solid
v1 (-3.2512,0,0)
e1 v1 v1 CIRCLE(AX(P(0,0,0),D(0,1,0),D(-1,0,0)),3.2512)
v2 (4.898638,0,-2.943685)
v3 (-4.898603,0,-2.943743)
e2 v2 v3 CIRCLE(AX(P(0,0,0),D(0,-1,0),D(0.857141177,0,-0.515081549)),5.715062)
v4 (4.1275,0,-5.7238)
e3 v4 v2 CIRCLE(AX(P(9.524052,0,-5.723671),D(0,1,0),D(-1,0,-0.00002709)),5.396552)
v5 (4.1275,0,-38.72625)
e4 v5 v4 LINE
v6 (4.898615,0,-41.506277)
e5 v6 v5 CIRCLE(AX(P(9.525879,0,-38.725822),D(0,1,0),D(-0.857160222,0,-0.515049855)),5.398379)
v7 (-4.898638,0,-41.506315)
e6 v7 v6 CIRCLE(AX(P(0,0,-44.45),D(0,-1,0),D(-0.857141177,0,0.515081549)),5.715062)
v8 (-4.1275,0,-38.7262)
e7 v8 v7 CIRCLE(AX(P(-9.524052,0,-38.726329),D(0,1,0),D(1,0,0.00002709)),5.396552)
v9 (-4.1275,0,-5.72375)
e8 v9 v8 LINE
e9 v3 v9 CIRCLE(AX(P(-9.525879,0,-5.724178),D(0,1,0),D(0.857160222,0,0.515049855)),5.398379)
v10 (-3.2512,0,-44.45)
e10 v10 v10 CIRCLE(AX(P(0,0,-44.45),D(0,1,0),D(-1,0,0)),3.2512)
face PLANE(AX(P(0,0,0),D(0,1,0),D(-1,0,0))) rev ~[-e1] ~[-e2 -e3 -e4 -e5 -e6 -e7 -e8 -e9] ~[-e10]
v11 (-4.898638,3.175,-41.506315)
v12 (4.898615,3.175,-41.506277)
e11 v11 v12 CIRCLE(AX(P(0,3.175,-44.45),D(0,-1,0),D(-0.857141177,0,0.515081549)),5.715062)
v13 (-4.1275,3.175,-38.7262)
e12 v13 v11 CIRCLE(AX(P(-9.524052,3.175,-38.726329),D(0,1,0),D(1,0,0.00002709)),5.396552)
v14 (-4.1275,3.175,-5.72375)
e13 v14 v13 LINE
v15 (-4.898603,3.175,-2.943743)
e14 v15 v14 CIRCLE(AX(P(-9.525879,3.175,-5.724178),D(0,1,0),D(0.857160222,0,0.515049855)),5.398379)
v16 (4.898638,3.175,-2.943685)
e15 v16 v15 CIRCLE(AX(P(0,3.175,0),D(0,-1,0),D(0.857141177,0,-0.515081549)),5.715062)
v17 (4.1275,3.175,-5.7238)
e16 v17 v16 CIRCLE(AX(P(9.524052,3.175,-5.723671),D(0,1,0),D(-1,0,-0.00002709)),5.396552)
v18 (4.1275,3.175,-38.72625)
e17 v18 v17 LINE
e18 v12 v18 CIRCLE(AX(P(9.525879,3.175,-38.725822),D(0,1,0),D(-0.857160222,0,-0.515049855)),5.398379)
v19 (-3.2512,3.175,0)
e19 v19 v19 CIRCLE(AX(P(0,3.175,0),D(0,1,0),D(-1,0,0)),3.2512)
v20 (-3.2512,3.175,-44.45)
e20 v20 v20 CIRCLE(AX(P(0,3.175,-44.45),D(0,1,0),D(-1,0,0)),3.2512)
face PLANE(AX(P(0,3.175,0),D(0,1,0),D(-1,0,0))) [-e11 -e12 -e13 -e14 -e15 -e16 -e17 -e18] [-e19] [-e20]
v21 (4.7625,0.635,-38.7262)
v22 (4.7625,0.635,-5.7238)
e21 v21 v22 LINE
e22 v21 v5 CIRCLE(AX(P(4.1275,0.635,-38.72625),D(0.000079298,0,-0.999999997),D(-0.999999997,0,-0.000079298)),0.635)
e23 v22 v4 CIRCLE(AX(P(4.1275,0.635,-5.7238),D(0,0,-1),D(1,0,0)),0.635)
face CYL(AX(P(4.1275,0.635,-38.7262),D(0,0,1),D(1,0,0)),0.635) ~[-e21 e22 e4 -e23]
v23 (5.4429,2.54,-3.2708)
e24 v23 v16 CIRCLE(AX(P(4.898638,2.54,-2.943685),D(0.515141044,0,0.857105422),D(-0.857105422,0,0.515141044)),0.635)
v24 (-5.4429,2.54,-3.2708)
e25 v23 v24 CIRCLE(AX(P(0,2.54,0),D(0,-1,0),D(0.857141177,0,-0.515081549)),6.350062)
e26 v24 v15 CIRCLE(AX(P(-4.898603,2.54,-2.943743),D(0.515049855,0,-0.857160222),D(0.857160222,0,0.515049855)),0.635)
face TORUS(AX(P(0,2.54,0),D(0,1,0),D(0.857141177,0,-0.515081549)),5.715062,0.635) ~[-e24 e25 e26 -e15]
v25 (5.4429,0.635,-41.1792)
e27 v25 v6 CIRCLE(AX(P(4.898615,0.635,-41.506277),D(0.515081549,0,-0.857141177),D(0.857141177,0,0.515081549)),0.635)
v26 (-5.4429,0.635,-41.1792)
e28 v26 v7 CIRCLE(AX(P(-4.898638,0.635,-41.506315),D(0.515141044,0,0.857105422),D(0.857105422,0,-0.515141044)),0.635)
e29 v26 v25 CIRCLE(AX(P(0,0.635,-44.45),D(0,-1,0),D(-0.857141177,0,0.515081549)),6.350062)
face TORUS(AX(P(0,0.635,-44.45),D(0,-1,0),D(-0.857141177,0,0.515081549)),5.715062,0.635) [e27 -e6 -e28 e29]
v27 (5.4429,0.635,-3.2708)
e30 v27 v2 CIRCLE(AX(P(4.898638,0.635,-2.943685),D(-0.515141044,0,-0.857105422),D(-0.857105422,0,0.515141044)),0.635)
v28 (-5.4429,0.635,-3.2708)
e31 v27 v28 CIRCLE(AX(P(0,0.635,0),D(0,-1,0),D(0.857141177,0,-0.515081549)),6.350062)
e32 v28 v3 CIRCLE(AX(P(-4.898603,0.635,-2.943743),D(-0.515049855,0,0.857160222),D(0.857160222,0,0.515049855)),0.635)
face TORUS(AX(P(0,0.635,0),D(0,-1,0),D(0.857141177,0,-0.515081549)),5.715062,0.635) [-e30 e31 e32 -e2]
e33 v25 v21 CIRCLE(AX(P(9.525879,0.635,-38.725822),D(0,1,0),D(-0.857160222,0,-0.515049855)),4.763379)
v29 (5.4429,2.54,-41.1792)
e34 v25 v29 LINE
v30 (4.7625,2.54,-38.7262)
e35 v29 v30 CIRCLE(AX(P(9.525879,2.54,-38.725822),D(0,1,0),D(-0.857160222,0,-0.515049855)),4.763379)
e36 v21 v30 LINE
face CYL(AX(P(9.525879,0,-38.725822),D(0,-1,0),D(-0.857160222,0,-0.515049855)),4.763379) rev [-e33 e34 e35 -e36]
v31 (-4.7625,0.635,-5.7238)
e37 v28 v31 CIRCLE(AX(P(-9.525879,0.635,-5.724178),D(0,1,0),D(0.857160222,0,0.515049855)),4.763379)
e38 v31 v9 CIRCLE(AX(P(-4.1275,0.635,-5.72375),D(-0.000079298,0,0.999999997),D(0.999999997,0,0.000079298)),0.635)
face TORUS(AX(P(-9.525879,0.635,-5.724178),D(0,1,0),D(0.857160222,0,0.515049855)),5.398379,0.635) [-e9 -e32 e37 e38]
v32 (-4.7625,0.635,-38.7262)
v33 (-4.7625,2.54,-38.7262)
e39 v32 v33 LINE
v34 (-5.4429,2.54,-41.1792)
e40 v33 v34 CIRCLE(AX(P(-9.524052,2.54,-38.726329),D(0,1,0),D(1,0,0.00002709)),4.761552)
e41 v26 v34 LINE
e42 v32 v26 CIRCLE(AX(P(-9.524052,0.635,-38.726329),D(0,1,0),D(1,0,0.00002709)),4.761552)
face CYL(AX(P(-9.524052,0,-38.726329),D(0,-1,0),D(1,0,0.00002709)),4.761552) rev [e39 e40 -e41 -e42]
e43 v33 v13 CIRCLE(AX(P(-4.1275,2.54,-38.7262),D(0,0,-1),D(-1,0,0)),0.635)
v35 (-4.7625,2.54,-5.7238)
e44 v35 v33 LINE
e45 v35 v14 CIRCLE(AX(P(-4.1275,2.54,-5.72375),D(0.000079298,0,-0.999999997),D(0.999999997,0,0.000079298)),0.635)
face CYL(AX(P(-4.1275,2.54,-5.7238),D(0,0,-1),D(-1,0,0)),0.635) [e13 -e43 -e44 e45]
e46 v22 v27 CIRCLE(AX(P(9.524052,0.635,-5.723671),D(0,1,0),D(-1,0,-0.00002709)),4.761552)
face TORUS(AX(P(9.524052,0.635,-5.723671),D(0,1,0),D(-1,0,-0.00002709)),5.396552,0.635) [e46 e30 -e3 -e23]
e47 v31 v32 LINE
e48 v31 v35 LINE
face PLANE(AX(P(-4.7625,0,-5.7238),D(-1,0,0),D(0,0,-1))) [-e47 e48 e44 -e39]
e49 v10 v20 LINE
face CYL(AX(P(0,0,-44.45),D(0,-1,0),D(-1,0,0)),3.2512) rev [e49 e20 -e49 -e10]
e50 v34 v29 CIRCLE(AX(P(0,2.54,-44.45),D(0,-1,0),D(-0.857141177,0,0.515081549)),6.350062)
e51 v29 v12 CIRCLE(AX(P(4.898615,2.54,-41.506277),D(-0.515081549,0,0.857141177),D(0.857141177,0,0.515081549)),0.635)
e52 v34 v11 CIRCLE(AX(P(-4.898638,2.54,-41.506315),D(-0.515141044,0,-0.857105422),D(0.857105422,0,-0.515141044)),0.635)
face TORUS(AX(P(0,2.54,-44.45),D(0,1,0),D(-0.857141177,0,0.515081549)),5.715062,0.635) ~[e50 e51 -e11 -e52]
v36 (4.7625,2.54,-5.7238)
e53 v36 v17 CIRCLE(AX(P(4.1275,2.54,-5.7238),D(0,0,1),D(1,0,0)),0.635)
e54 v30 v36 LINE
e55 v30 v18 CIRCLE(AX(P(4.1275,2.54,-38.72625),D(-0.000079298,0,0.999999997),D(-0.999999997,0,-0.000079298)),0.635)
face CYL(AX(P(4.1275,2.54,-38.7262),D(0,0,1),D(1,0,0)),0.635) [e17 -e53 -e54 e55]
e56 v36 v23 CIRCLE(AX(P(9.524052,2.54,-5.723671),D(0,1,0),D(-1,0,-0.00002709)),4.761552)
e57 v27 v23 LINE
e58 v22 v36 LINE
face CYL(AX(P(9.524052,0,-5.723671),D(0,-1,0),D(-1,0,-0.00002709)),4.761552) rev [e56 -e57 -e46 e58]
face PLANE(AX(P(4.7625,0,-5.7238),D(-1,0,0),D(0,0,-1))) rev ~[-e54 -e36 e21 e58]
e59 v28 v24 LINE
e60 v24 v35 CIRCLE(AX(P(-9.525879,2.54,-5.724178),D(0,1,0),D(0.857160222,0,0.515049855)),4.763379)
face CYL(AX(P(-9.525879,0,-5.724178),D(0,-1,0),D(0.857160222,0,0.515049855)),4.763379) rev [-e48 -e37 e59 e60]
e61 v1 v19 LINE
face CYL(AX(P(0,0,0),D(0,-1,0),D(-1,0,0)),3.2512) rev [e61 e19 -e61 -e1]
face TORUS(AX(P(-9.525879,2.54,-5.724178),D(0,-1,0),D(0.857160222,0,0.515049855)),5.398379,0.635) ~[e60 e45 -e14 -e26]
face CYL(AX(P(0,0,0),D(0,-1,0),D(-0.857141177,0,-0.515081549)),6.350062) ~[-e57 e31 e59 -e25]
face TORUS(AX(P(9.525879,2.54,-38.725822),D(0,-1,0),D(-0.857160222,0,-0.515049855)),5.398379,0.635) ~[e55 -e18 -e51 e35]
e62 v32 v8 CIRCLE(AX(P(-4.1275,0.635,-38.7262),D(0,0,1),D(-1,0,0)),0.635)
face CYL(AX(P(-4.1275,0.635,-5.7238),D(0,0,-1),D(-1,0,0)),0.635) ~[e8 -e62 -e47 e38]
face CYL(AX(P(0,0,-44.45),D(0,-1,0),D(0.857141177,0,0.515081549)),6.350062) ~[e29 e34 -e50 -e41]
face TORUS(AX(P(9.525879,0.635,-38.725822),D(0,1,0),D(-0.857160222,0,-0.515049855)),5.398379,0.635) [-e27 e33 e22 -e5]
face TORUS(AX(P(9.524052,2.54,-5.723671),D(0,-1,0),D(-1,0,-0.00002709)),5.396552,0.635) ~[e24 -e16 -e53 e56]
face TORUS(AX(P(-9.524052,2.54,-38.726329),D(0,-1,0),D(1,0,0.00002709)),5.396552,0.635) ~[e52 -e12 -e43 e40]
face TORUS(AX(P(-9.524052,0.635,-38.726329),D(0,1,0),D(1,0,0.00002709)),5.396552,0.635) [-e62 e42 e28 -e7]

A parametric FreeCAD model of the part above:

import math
import FreeCAD as App
import Part
import Sketcher
Q = App.Units.Quantity


def edges_at(feature, points):
    """Names of the edges that pass closest to the given points."""
    edges = feature.Shape.Edges
    near = lambda p: min(range(len(edges)), key=lambda i: edges[i].distToShape(Part.Vertex(*p))[0])
    return sorted({f"Edge{near(p) + 1}" for p in points})

doc = App.newDocument("Part")
body = doc.addObject("PartDesign::Body", "Body")

# Sketch on XZ plane
sketch1 = body.newObject("Sketcher::SketchObject", "Sketch")
sketch1.AttachmentSupport = (doc.getObject("XZ_Plane"), [""])
sketch1.MapMode = "FlatFace"
sketch1.addGeometry(Part.LineSegment(App.Vector(-4.7625, -38.7262, 0), App.Vector(-4.7625, -5.7238, 0)), False)
sketch1.addGeometry(Part.ArcOfCircle(Part.Circle(App.Vector(-9.525, -5.7238, 0), App.Vector(0, 0, 1), 4.762431), math.radians(0), math.radians(31.00234)), False)
sketch1.addGeometry(Part.ArcOfCircle(Part.Circle(App.Vector(0, 0, 0), App.Vector(0, 0, 1), 6.350062), math.radians(-31.002906), math.radians(211.002906)), False)
sketch1.addGeometry(Part.ArcOfCircle(Part.Circle(App.Vector(9.525, -5.7238, 0), App.Vector(0, 0, 1), 4.7625), math.radians(148.99766), math.radians(180)), False)
sketch1.addGeometry(Part.LineSegment(App.Vector(4.7625, -5.7238, 0), App.Vector(4.7625, -38.7262, 0)), False)
sketch1.addGeometry(Part.ArcOfCircle(Part.Circle(App.Vector(9.525, -38.7262, 0), App.Vector(0, 0, 1), 4.762431), math.radians(180), math.radians(211.00234)), False)
sketch1.addGeometry(Part.ArcOfCircle(Part.Circle(App.Vector(0, -44.45, 0), App.Vector(0, 0, 1), 6.350062), math.radians(148.997094), math.radians(391.002906)), False)
sketch1.addGeometry(Part.ArcOfCircle(Part.Circle(App.Vector(-9.525, -38.7262, 0), App.Vector(0, 0, 1), 4.7625), math.radians(-31.00234), math.radians(0)), False)
sketch1.addGeometry(Part.Circle(App.Vector(0, -44.45, 0), App.Vector(0, 0, 1), 3.2512), False)
sketch1.addGeometry(Part.Circle(App.Vector(0, 0, 0), App.Vector(0, 0, 1), 3.2512), False)
sketch1.addConstraint(Sketcher.Constraint("Tangent", 0, 2, 1, 1))
sketch1.addConstraint(Sketcher.Constraint("Tangent", 1, 2, 2, 2))
sketch1.addConstraint(Sketcher.Constraint("Tangent", 2, 1, 3, 1))
sketch1.addConstraint(Sketcher.Constraint("Tangent", 3, 2, 4, 1))
sketch1.addConstraint(Sketcher.Constraint("Tangent", 4, 2, 5, 1))
sketch1.addConstraint(Sketcher.Constraint("Tangent", 5, 2, 6, 2))
sketch1.addConstraint(Sketcher.Constraint("Tangent", 6, 1, 7, 1))
sketch1.addConstraint(Sketcher.Constraint("Tangent", 7, 2, 0, 1))
sketch1.addConstraint(Sketcher.Constraint("Vertical", 0))
sketch1.addConstraint(Sketcher.Constraint("Vertical", 4))
sketch1.addConstraint(Sketcher.Constraint("Coincident", 2, 3, -1, 1))
sketch1.addConstraint(Sketcher.Constraint("Coincident", 9, 3, -1, 1))
sketch1.addConstraint(Sketcher.Constraint("Coincident", 8, 3, 6, 3))
sketch1.addConstraint(Sketcher.Constraint("Equal", 1, 3))
sketch1.addConstraint(Sketcher.Constraint("Equal", 3, 5))
sketch1.addConstraint(Sketcher.Constraint("Equal", 2, 6))
sketch1.addConstraint(Sketcher.Constraint("Equal", 5, 7))
sketch1.addConstraint(Sketcher.Constraint("Equal", 8, 9))
sketch1.addConstraint(Sketcher.Constraint("Symmetric", 5, 3, 7, 3, -2))
sketch1.addConstraint(Sketcher.Constraint("Radius", 2, Q("0.25 in")))
sketch1.addConstraint(Sketcher.Constraint("Diameter", 8, Q("0.256 in")))
sketch1.addConstraint(Sketcher.Constraint("Radius", 1, Q("0.1875 in")))
sketch1.addConstraint(Sketcher.Constraint("DistanceY", 6, 3, -1, 1, Q("1.75 in")))
sketch1.addConstraint(Sketcher.Constraint("DistanceX", 0, 2, -1, 1, Q("0.1875 in")))
pad1 = body.newObject("PartDesign::Pad", "Pad")
pad1.Profile = sketch1
pad1.Length = Q("0.125 in")
pad1.Reversed = True
doc.recompute()

fillet = body.newObject("PartDesign::Fillet", "Fillet")
fillet.Base = (pad1, edges_at(pad1, [
    (-4.936, 3.175, -4.451),
    (0, 3.175, 6.35),
    (4.936, 3.175, -4.451),
    (4.763, 3.175, -22.225),
    (4.936, 3.175, -39.999),
    (0, 3.175, -50.8),
    (-4.936, 3.175, -39.999),
    (-4.763, 3.175, -22.225),
    (-4.936, 0, -4.451),
    (0, 0, 6.35),
    (4.936, 0, -4.451),
    (4.763, 0, -22.225),
    (4.936, 0, -39.999),
    (0, 0, -50.8),
    (-4.936, 0, -39.999),
    (-4.763, 0, -22.225),
]))
fillet.Radius = Q("0.025 in")

doc.recompute()
